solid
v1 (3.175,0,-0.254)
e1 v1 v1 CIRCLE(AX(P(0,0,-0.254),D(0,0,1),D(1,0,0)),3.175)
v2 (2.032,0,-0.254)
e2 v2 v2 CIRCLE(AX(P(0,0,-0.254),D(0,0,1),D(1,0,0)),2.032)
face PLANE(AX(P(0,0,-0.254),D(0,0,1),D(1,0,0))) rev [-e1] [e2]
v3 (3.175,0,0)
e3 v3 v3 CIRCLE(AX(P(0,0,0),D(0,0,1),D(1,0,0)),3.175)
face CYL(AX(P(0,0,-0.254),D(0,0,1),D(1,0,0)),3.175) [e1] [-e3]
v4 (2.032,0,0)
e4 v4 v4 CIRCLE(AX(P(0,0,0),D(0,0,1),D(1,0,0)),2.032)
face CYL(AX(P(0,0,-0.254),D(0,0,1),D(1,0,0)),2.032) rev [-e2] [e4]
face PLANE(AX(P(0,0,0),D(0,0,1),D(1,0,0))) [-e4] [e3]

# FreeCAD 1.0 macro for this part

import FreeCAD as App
import Part
import Sketcher

V = App.Vector
Q = App.Units.Quantity

doc = App.newDocument("Part")
body = doc.addObject("PartDesign::Body", "Body")

# Sketch on XY plane
sketch1 = body.newObject("Sketcher::SketchObject", "Sketch")
sketch1.AttachmentSupport = (doc.getObject("XY_Plane"), [""])
sketch1.MapMode = "FlatFace"
sketch1.addGeometry(Part.Circle(V(0, 0, 0), V(0, 0, 1), 3.2), False)
sketch1.addGeometry(Part.Circle(V(0, 0, 0), V(0, 0, 1), 2), False)
sketch1.addConstraint(Sketcher.Constraint("Coincident", 0, 3, -1, 1))
sketch1.addConstraint(Sketcher.Constraint("Coincident", 1, 3, -1, 1))
sketch1.addConstraint(Sketcher.Constraint("Diameter", 0, Q("0.25 in")))
sketch1.addConstraint(Sketcher.Constraint("Diameter", 1, Q("0.16 in")))
pad1 = body.newObject("PartDesign::Pad", "Pad")
pad1.Profile = sketch1
pad1.Length = Q("0.01 in")
pad1.Reversed = True

doc.recompute()
